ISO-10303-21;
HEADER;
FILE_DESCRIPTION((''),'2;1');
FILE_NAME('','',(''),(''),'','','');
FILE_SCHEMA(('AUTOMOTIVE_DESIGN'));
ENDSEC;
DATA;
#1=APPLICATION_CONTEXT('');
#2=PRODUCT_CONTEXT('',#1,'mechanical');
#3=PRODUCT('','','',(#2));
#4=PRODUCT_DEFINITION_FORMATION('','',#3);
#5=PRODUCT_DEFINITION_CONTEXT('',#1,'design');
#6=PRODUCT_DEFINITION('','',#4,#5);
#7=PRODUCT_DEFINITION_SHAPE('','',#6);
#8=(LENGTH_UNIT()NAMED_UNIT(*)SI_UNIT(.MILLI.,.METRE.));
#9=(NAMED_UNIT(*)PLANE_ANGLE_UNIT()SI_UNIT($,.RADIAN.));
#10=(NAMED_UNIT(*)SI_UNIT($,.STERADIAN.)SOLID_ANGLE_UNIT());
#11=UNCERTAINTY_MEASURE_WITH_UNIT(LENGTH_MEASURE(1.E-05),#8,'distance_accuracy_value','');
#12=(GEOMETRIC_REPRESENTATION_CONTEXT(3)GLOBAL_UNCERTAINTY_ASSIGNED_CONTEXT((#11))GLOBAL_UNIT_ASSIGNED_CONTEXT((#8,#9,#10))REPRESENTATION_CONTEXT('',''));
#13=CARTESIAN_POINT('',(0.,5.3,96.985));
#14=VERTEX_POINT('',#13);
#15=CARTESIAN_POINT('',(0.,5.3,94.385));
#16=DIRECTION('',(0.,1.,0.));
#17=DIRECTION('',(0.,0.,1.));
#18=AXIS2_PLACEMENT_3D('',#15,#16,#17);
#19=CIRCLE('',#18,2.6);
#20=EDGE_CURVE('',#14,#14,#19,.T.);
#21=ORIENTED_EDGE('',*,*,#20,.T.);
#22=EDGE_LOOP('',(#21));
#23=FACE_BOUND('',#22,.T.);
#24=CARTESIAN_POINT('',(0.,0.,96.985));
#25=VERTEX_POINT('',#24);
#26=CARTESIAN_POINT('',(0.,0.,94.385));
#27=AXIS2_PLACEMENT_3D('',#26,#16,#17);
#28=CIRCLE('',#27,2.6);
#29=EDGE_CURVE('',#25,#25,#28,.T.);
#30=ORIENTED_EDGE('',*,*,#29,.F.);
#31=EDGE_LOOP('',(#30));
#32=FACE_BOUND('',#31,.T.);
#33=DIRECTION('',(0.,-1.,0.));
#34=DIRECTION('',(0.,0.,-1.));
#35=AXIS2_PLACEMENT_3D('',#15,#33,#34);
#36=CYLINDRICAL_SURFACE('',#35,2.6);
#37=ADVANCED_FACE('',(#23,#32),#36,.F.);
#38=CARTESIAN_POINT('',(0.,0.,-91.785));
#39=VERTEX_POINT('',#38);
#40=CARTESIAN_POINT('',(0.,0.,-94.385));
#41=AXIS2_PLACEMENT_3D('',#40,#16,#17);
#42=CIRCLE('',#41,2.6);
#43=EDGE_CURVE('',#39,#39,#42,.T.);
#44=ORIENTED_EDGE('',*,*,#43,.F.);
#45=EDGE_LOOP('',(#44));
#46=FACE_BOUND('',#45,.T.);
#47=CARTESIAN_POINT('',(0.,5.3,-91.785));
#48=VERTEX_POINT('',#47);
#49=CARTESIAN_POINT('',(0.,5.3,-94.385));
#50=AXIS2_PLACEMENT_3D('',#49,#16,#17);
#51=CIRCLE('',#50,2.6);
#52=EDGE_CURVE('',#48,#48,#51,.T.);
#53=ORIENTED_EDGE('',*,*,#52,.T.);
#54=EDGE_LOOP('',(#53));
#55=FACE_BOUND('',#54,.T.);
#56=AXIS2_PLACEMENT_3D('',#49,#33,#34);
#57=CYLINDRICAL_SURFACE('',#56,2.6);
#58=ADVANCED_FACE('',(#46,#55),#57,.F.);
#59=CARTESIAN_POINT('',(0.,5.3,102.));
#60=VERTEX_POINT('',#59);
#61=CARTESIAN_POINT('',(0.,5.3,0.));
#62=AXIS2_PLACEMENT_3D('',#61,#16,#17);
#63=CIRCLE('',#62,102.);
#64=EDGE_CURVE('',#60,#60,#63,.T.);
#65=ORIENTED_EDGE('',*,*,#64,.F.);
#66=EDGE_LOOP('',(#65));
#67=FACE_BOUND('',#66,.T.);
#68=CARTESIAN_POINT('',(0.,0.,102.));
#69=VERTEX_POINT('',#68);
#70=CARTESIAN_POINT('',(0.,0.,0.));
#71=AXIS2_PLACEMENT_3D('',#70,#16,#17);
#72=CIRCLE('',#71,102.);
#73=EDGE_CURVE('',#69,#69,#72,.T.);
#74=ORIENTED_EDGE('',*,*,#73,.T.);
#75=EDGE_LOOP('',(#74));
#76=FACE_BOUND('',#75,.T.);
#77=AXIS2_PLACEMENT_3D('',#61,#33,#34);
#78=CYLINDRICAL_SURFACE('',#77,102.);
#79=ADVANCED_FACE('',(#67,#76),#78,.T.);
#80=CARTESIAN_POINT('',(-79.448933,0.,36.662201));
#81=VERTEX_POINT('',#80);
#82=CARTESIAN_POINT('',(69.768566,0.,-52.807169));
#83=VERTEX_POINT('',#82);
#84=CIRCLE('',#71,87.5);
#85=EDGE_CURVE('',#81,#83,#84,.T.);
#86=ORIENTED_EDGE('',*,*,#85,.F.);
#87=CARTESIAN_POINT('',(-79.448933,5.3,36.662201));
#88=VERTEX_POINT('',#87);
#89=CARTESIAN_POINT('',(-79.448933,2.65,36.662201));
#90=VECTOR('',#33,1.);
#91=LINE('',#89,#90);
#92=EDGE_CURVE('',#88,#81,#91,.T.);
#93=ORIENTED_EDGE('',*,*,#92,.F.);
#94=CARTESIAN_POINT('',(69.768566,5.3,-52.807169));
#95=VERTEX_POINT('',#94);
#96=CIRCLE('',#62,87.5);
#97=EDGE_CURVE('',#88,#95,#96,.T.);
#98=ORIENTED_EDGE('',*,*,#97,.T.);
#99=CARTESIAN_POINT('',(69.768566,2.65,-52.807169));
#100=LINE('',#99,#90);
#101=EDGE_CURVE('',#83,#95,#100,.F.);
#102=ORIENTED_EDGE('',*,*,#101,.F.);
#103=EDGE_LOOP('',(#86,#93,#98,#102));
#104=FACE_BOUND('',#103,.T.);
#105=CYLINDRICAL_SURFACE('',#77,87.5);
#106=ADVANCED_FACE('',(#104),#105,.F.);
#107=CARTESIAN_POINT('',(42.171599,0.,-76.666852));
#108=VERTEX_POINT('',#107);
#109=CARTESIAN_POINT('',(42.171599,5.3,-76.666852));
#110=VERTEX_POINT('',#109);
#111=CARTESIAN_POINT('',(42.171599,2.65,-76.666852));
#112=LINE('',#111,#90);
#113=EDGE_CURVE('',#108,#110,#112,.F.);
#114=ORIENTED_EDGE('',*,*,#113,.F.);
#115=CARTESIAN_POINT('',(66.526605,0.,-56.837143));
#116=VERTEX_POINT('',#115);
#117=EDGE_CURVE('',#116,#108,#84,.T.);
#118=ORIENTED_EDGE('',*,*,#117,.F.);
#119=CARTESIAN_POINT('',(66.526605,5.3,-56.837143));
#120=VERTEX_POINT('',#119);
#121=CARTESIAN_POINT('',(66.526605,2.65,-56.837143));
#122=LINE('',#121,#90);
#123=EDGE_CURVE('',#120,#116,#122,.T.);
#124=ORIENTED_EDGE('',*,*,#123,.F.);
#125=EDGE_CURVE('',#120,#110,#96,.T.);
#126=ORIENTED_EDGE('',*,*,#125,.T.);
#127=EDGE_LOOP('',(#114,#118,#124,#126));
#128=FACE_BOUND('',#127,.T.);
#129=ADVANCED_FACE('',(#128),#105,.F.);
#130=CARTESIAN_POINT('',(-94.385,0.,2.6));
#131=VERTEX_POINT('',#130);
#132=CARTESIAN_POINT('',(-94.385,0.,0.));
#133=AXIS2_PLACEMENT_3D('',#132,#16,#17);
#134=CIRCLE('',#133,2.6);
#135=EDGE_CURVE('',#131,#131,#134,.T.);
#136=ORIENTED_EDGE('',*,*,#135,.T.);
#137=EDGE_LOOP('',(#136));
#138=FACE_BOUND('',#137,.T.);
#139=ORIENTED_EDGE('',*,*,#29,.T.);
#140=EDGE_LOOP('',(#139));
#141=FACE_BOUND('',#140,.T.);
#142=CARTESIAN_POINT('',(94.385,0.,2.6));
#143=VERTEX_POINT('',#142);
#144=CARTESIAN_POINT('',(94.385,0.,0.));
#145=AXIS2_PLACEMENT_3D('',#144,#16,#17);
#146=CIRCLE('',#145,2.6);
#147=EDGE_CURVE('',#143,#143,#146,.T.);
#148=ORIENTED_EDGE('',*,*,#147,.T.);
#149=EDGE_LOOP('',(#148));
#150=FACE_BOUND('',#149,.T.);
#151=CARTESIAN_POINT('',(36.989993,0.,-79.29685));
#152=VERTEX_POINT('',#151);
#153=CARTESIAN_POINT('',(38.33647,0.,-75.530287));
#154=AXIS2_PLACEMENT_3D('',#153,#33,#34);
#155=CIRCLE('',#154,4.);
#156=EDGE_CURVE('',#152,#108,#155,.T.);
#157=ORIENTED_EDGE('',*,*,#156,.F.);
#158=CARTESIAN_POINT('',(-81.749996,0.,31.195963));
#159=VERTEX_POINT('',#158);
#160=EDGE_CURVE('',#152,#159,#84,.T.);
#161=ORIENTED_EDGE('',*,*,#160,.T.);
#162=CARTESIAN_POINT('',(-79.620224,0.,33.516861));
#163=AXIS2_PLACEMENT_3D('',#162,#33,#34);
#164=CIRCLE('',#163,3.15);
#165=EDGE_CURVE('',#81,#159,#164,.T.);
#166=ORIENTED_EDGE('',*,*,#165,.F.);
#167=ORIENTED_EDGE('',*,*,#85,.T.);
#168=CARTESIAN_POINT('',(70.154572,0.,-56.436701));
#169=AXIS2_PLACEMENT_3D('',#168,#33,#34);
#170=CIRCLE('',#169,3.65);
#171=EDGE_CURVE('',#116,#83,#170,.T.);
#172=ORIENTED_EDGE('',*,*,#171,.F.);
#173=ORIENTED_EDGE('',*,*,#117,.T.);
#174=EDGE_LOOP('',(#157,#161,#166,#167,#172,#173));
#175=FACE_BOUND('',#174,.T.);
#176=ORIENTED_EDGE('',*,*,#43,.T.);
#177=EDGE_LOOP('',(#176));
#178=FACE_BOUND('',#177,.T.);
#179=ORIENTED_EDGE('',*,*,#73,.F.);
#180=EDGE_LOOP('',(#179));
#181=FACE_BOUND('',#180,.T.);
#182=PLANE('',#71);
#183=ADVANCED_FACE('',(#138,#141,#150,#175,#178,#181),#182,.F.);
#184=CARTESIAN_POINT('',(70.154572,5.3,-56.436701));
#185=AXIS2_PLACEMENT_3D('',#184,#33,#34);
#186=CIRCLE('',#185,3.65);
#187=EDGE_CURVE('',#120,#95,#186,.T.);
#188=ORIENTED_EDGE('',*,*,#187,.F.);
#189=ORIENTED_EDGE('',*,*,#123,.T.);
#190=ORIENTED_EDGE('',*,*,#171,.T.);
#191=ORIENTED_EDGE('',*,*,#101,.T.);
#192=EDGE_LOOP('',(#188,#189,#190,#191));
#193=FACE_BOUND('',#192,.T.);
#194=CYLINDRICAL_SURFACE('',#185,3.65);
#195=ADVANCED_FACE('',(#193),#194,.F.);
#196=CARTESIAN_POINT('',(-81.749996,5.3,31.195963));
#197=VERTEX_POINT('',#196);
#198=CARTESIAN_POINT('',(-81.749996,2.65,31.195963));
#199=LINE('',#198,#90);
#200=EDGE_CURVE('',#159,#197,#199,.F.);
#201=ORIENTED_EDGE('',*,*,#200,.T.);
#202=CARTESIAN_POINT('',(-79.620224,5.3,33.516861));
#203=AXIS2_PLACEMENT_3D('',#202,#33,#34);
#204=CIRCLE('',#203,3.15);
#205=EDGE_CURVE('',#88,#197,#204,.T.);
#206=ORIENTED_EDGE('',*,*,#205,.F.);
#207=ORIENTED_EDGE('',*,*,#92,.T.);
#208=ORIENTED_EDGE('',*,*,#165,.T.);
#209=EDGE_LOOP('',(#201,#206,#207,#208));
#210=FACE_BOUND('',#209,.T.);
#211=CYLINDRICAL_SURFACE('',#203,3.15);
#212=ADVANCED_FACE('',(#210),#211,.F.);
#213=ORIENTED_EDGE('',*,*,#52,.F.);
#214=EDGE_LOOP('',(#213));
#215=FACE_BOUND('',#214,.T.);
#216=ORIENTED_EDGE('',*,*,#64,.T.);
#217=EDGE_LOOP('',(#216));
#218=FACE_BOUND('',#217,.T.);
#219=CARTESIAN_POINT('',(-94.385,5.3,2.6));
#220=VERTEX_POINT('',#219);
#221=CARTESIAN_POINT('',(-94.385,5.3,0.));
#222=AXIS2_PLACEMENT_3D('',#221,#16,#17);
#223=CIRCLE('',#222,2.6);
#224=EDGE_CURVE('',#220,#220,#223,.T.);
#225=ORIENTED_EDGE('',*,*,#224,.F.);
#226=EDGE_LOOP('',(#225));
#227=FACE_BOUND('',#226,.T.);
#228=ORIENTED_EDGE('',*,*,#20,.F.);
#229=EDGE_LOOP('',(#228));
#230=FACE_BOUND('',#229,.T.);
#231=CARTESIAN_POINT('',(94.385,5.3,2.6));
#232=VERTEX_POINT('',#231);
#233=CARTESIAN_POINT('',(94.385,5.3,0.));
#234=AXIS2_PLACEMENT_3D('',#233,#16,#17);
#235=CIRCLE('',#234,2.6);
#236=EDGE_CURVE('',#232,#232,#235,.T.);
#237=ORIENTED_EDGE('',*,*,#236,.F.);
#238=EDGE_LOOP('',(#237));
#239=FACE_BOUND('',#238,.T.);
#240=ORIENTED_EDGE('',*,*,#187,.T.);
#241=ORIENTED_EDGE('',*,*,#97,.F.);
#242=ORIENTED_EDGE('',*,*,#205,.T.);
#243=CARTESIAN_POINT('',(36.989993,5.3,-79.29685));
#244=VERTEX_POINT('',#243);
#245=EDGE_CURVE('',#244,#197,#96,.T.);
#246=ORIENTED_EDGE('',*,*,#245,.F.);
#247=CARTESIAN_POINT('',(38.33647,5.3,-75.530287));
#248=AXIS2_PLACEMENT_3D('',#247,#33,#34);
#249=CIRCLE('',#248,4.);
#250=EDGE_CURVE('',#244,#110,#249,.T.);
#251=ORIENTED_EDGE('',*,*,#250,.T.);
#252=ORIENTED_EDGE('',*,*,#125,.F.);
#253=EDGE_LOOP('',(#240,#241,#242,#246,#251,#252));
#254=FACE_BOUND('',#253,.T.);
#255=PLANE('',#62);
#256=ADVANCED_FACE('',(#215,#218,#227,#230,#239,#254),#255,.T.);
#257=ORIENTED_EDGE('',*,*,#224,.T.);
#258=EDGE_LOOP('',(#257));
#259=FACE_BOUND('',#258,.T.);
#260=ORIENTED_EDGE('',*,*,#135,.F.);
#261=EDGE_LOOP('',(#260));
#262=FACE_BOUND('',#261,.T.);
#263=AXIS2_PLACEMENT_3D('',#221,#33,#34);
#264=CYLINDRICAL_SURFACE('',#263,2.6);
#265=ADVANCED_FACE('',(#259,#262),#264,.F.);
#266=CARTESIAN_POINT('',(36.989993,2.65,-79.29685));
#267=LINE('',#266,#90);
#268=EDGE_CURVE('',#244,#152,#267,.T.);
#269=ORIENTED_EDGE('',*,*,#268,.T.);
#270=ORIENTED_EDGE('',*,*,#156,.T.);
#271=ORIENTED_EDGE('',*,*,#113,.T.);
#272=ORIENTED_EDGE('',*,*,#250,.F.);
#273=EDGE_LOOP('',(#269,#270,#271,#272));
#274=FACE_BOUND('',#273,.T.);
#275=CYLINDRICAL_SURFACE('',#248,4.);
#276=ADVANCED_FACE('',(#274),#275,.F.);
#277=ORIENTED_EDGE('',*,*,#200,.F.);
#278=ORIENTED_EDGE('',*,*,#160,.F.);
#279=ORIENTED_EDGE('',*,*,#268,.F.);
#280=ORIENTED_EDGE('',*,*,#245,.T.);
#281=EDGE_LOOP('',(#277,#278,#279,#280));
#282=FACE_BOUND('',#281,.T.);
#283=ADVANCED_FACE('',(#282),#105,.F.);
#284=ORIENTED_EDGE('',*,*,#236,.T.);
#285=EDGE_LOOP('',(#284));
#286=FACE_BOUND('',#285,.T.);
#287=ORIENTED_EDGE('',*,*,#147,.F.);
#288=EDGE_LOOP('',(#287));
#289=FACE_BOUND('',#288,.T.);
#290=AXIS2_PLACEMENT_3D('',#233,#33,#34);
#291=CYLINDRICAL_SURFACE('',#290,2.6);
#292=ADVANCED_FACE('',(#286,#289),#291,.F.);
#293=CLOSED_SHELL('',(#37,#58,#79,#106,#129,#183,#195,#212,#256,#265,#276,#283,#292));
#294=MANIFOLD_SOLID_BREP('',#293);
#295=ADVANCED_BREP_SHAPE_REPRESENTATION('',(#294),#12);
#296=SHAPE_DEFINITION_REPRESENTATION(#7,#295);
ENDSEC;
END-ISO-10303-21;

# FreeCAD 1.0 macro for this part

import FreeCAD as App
import Part
import Sketcher
from FreeCAD import Vector
Q = App.Units.Quantity

doc = App.newDocument("Part")
params = doc.addObject("Spreadsheet::Sheet", "Params")
for row, (alias, value) in enumerate([
    ("sketch1_diameter", "204 mm"),
    ("sketch1_diameter2", "175 mm"),
    ("sketch1_diameter3", "5.2 mm"),
    ("pad1_length", "5.3 mm"),
    ("sketch2_diameter", "8 mm"),
    ("sketch2_diameter2", "7.3 mm"),
    ("sketch2_diameter3", "6.3 mm"),
], start=1):
    params.set(f"A{row}", alias)
    params.set(f"B{row}", "=" + value)
    params.setAlias(f"B{row}", alias)

body = doc.addObject("PartDesign::Body", "Body")

sketch1 = doc.addObject("Sketcher::SketchObject", "Sketch")
body.addObject(sketch1)
sketch1.AttachmentSupport = (doc.XZ_Plane, [""])
sketch1.MapMode = "FlatFace"
sketch1.addGeometry([
    Part.Circle(Vector(0, 0, 0), Vector(0, 0, 1), 102),
    Part.Circle(Vector(0, -94.385, 0), Vector(0, 0, 1), 2.6),
    Part.Circle(Vector(0, 0, 0), Vector(0, 0, 1), 87.5),
    Part.Circle(Vector(-94.385, 0, 0), Vector(0, 0, 1), 2.6),
    Part.Circle(Vector(94.385, 0, 0), Vector(0, 0, 1), 2.6),
    Part.Circle(Vector(0, 94.385, 0), Vector(0, 0, 1), 2.6),
], False)
sketch1.addConstraint([
    Sketcher.Constraint("Coincident", 0, 3, -1, 1),
    Sketcher.Constraint("Coincident", 2, 3, -1, 1),
    Sketcher.Constraint("Equal", 1, 3),
    Sketcher.Constraint("Equal", 3, 4),
    Sketcher.Constraint("Equal", 4, 5),
    Sketcher.Constraint("Symmetric", 3, 3, 4, 3, -1, 1),
    Sketcher.Constraint("Symmetric", 1, 3, 5, 3, -1, 1),
    Sketcher.Constraint("PointOnObject", 1, 3, -2),
    Sketcher.Constraint("PointOnObject", 3, 3, -1),
    Sketcher.Constraint("Diameter", 0, Q("204 mm")),
    Sketcher.Constraint("Diameter", 2, Q("175 mm")),
    Sketcher.Constraint("Diameter", 1, Q("5.2 mm")),
    Sketcher.Constraint("DistanceX", 3, 3, 4, 3, Q("188.77 mm")),
    Sketcher.Constraint("DistanceY", 1, 3, 5, 3, Q("188.77 mm")),
])
sketch1.setExpression("Constraints[9]", "Params.sketch1_diameter")
sketch1.setExpression("Constraints[10]", "Params.sketch1_diameter2")
sketch1.setExpression("Constraints[11]", "Params.sketch1_diameter3")
pad1 = doc.addObject("PartDesign::Pad", "Pad")
body.addObject(pad1)
pad1.Profile = sketch1
pad1.setExpression("Length", "Params.pad1_length")
pad1.Reversed = True

sketch2 = doc.addObject("Sketcher::SketchObject", "Sketch001")
body.addObject(sketch2)
sketch2.AttachmentSupport = (doc.XZ_Plane, [""])
sketch2.MapMode = "FlatFace"
sketch2.addGeometry([
    Part.Circle(Vector(70.154572, -56.436701, 0), Vector(0, 0, 1), 3.65),
    Part.Circle(Vector(-79.620224, 33.516861, 0), Vector(0, 0, 1), 3.15),
    Part.Circle(Vector(38.33647, -75.530287, 0), Vector(0, 0, 1), 4),
], False)
sketch2.addConstraint([
    Sketcher.Constraint("Diameter", 2, Q("8 mm")),
    Sketcher.Constraint("Diameter", 0, Q("7.3 mm")),
    Sketcher.Constraint("Diameter", 1, Q("6.3 mm")),
    Sketcher.Constraint("DistanceY", 0, 3, -1, 1, Q("56.436701 mm")),
    Sketcher.Constraint("DistanceY", -1, 1, 1, 3, Q("33.516861 mm")),
    Sketcher.Constraint("DistanceX", -1, 1, 2, 3, Q("38.33647 mm")),
    Sketcher.Constraint("DistanceY", 2, 3, 1, 3, Q("109.047148 mm")),
    Sketcher.Constraint("DistanceX", -1, 1, 0, 3, Q("70.154572 mm")),
    Sketcher.Constraint("DistanceX", 1, 3, -1, 1, Q("79.620224 mm")),
])
sketch2.setExpression("Constraints[0]", "Params.sketch2_diameter")
sketch2.setExpression("Constraints[1]", "Params.sketch2_diameter2")
sketch2.setExpression("Constraints[2]", "Params.sketch2_diameter3")
pocket1 = doc.addObject("PartDesign::Pocket", "Pocket")
body.addObject(pocket1)
pocket1.Profile = sketch2
pocket1.Type = "ThroughAll"

doc.recompute()
